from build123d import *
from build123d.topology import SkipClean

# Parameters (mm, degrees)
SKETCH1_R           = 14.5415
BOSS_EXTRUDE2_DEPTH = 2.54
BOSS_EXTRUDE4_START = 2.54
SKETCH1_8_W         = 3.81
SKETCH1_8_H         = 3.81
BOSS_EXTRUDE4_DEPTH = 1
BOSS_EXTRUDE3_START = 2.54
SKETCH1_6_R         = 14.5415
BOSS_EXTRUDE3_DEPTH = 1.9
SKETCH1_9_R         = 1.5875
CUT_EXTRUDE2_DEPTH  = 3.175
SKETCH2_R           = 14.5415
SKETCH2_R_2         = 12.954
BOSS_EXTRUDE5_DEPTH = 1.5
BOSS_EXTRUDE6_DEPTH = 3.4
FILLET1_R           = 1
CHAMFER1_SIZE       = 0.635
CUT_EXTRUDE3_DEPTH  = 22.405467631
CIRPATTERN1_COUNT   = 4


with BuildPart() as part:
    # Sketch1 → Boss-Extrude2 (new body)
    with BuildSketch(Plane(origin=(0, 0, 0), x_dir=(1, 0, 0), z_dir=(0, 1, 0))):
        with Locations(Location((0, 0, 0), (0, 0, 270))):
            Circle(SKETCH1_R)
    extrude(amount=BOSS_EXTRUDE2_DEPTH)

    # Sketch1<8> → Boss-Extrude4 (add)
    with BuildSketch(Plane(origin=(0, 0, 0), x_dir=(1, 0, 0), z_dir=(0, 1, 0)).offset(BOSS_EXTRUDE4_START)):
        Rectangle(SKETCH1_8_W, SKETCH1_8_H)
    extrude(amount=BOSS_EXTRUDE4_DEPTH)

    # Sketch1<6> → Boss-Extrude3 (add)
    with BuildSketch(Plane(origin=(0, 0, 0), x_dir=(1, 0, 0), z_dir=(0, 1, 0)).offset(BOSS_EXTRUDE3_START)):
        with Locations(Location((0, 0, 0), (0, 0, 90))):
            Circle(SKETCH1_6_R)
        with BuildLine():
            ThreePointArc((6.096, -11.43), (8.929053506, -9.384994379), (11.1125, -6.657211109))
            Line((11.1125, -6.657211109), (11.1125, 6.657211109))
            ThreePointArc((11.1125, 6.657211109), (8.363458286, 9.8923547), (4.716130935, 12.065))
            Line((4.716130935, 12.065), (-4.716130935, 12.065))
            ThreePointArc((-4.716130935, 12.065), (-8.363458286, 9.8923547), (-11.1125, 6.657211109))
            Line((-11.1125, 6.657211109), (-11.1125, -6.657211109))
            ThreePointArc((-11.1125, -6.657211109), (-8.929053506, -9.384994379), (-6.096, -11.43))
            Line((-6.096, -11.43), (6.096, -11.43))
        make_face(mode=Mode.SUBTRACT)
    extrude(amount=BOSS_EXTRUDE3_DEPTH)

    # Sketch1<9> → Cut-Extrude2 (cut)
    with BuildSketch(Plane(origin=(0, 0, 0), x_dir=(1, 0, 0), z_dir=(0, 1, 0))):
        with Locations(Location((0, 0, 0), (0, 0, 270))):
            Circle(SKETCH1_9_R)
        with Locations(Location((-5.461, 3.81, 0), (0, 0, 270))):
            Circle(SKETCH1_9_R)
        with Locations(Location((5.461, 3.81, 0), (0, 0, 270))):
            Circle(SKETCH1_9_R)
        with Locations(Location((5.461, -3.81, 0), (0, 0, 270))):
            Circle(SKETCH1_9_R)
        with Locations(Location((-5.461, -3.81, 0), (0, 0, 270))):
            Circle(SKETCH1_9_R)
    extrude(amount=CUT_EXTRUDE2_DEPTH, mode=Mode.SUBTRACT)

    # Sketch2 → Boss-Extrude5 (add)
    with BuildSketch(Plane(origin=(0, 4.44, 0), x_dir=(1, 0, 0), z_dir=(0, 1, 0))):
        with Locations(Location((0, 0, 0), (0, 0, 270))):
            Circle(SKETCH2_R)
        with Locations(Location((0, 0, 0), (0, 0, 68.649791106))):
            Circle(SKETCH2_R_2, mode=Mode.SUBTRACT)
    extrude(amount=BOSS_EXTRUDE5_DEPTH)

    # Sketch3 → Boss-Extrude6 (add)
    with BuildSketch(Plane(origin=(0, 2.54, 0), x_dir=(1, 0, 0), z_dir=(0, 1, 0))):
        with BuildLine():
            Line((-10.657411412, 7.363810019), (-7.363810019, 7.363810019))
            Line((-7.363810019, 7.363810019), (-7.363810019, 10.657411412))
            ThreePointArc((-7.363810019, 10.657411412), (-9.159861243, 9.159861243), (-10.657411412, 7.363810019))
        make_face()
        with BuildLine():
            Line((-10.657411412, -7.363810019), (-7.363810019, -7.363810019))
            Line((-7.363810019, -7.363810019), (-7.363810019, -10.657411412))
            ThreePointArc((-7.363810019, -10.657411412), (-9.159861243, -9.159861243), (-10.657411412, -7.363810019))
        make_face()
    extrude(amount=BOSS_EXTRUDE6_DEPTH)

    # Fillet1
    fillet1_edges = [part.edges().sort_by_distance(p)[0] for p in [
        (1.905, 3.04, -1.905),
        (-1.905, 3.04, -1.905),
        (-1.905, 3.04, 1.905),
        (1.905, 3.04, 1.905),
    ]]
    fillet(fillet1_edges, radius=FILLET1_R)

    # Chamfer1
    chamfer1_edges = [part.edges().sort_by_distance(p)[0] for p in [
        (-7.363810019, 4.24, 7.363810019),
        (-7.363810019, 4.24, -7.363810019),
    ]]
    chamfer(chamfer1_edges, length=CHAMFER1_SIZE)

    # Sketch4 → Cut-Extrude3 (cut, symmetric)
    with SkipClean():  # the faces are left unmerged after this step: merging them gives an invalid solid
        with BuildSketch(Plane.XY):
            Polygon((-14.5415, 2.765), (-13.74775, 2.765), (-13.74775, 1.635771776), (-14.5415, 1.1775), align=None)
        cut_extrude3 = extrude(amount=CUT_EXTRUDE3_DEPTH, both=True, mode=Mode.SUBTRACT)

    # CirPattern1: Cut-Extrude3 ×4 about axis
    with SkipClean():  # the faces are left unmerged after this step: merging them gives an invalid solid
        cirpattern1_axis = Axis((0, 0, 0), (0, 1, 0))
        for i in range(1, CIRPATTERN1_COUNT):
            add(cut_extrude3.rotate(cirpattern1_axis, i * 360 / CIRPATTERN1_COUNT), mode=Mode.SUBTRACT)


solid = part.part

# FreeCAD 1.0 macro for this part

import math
import FreeCAD as App
import Part
import Sketcher

V = App.Vector
Q = App.Units.Quantity


def edges_at(feature, points):
    """Names of the edges that pass closest to the given points."""
    edges = feature.Shape.Edges
    near = lambda p: min(range(len(edges)), key=lambda i: edges[i].distToShape(Part.Vertex(*p))[0])
    return sorted({f"Edge{near(p) + 1}" for p in points})


def add_polygon(sketch, points):
    """Adds a closed chain of lines whose ends are joined by coincident constraints."""
    first, n = sketch.GeometryCount, len(points)
    for a, b in zip(points, points[1:] + points[:1]):
        sketch.addGeometry(Part.LineSegment(App.Vector(*a, 0), App.Vector(*b, 0)), False)
    for i in range(n):
        sketch.addConstraint(Sketcher.Constraint("Coincident", first + i, 2, first + (i + 1) % n, 1))

doc = App.newDocument("Part")
body = doc.addObject("PartDesign::Body", "Body")

sketch1 = body.newObject("Sketcher::SketchObject", "Sketch")
sketch1.AttachmentSupport = (doc.getObject("XZ_Plane"), [""])
sketch1.MapMode = "FlatFace"
sketch1.addGeometry(Part.Circle(V(0, 0, 0), V(0, 0, 1), 15), False)
sketch1.addConstraint([
    Sketcher.Constraint("Coincident", 0, 3, -1, 1),
    Sketcher.Constraint("Diameter", 0, Q("1.145 in")),
])
pad1 = body.newObject("PartDesign::Pad", "Pad")
pad1.Profile = sketch1
pad1.Length = Q("0.1 in")
pad1.Reversed = True

sketch2 = body.newObject("Sketcher::SketchObject", "Sketch001")
sketch2.AttachmentSupport = (doc.getObject("XZ_Plane"), [""])
sketch2.MapMode = "FlatFace"
sketch2.AttachmentOffset = App.Placement(V(0, 0, -0.1 * 25.4), App.Rotation())
add_polygon(sketch2, [(-1.9, -1.9), (-1.9, 1.9), (1.9, 1.9), (1.9, -1.9)])
sketch2.addConstraint([
    Sketcher.Constraint("Vertical", 0),
    Sketcher.Constraint("Horizontal", 1),
    Sketcher.Constraint("Vertical", 2),
    Sketcher.Constraint("Horizontal", 3),
    Sketcher.Constraint("Symmetric", 0, 2, 2, 2, -1, 1),
    Sketcher.Constraint("Equal", 3, 0),
    Sketcher.Constraint("DistanceX", 1, 1, 1, 2, Q("0.15 in")),
])
pad2 = body.newObject("PartDesign::Pad", "Pad001")
pad2.Profile = sketch2
pad2.Length = 1
pad2.Reversed = True

sketch3 = body.newObject("Sketcher::SketchObject", "Sketch002")
sketch3.AttachmentSupport = (doc.getObject("XZ_Plane"), [""])
sketch3.MapMode = "FlatFace"
sketch3.AttachmentOffset = App.Placement(V(0, 0, -0.1 * 25.4), App.Rotation())
sketch3.addGeometry([
    Part.Circle(V(0, 0, 0), V(0, 0, 1), 15),
    Part.ArcOfCircle(Part.Circle(V(0, 0, 0), V(0, 0, 1), 13), math.radians(31), math.radians(62)),
    Part.LineSegment(V(6, 11, 0), V(-6, 11, 0)),
    Part.ArcOfCircle(Part.Circle(V(0, 0, 0), V(0, 0, 1), 13), math.radians(118), math.radians(149)),
    Part.LineSegment(V(-11, 7, 0), V(-11, -7, 0)),
    Part.ArcOfCircle(Part.Circle(V(0, 0, 0), V(0, 0, 1), 13), math.radians(-149), math.radians(-111)),
    Part.LineSegment(V(-5, -12, 0), V(5, -12, 0)),
    Part.ArcOfCircle(Part.Circle(V(0, 0, 0), V(0, 0, 1), 13), math.radians(-69), math.radians(-31)),
    Part.LineSegment(V(11, -7, 0), V(11, 7, 0)),
], False)
sketch3.addConstraint([
    Sketcher.Constraint("Coincident", 1, 2, 2, 1),
    Sketcher.Constraint("Coincident", 2, 2, 3, 1),
    Sketcher.Constraint("Coincident", 3, 2, 4, 1),
    Sketcher.Constraint("Coincident", 4, 2, 5, 1),
    Sketcher.Constraint("Coincident", 5, 2, 6, 1),
    Sketcher.Constraint("Coincident", 6, 2, 7, 1),
    Sketcher.Constraint("Coincident", 7, 2, 8, 1),
    Sketcher.Constraint("Coincident", 8, 2, 1, 1),
    Sketcher.Constraint("Horizontal", 2),
    Sketcher.Constraint("Vertical", 4),
    Sketcher.Constraint("Horizontal", 6),
    Sketcher.Constraint("Vertical", 8),
    Sketcher.Constraint("Coincident", 0, 3, -1, 1),
    Sketcher.Constraint("Coincident", 1, 3, -1, 1),
    Sketcher.Constraint("Coincident", 3, 3, -1, 1),
    Sketcher.Constraint("Coincident", 5, 3, -1, 1),
    Sketcher.Constraint("Coincident", 7, 3, -1, 1),
    Sketcher.Constraint("Equal", 1, 3),
    Sketcher.Constraint("Equal", 3, 5),
    Sketcher.Constraint("Equal", 5, 7),
    Sketcher.Constraint("Horizontal", 4, 2, 7, 2),
    Sketcher.Constraint("Radius", 1, Q("0.51 in")),
    Sketcher.Constraint("Diameter", 0, Q("1.145 in")),
    Sketcher.Constraint("DistanceX", 2, 2, 2, 1, Q("0.48 in")),
    Sketcher.Constraint("DistanceX", 3, 2, -1, 1, Q("0.4375 in")),
    Sketcher.Constraint("DistanceY", 5, 2, -1, 1, Q("0.475 in")),
])
pad3 = body.newObject("PartDesign::Pad", "Pad002")
pad3.Profile = sketch3
pad3.Length = 1.9
pad3.Reversed = True

sketch4 = body.newObject("Sketcher::SketchObject", "Sketch003")
sketch4.AttachmentSupport = (doc.getObject("XZ_Plane"), [""])
sketch4.MapMode = "FlatFace"
sketch4.addGeometry([
    Part.Circle(V(0, 0, 0), V(0, 0, 1), 1.6),
    Part.Circle(V(-5.5, -3.8, 0), V(0, 0, 1), 1.6),
    Part.Circle(V(5.5, -3.8, 0), V(0, 0, 1), 1.6),
    Part.Circle(V(5.5, 3.8, 0), V(0, 0, 1), 1.6),
    Part.Circle(V(-5.5, 3.8, 0), V(0, 0, 1), 1.6),
], False)
sketch4.addConstraint([
    Sketcher.Constraint("Coincident", 0, 3, -1, 1),
    Sketcher.Constraint("Equal", 0, 1),
    Sketcher.Constraint("Equal", 1, 2),
    Sketcher.Constraint("Equal", 2, 3),
    Sketcher.Constraint("Equal", 3, 4),
    Sketcher.Constraint("Symmetric", 1, 3, 3, 3, -1, 1),
    Sketcher.Constraint("Symmetric", 2, 3, 4, 3, -1, 1),
    Sketcher.Constraint("Symmetric", 1, 3, 2, 3, -2),
    Sketcher.Constraint("Diameter", 0, Q("0.125 in")),
    Sketcher.Constraint("DistanceY", 2, 3, 3, 3, Q("0.3 in")),
    Sketcher.Constraint("DistanceX", 1, 3, 2, 3, Q("0.43 in")),
])
pocket1 = body.newObject("PartDesign::Pocket", "Pocket")
pocket1.Profile = sketch4
pocket1.Length = Q("0.125 in")

sketch5 = body.newObject("Sketcher::SketchObject", "Sketch004")
sketch5.AttachmentSupport = (doc.getObject("XZ_Plane"), [""])
sketch5.MapMode = "FlatFace"
sketch5.AttachmentOffset = App.Placement(V(0, 0, -4.44), App.Rotation())
sketch5.addGeometry([
    Part.Circle(V(0, 0, 0), V(0, 0, 1), 15),
    Part.Circle(V(0, 0, 0), V(0, 0, 1), 13),
], False)
sketch5.addConstraint([
    Sketcher.Constraint("Coincident", 0, 3, -1, 1),
    Sketcher.Constraint("Coincident", 1, 3, -1, 1),
    Sketcher.Constraint("Diameter", 1, Q("1.02 in")),
    Sketcher.Constraint("Diameter", 0, Q("1.145 in")),
])
pad4 = body.newObject("PartDesign::Pad", "Pad003")
pad4.Profile = sketch5
pad4.Length = 1.5
pad4.Reversed = True

sketch6 = body.newObject("Sketcher::SketchObject", "Sketch005")
sketch6.AttachmentSupport = (doc.getObject("XZ_Plane"), [""])
sketch6.MapMode = "FlatFace"
sketch6.AttachmentOffset = App.Placement(V(0, 0, -0.1 * 25.4), App.Rotation())
sketch6.addGeometry([
    Part.LineSegment(V(-10.7, -7.4, 0), V(-7.4, -7.4, 0)),
    Part.LineSegment(V(-7.4, -7.4, 0), V(-7.4, -10.7, 0)),
    Part.ArcOfCircle(Part.Circle(V(0, 0, 0), V(0, 0, 1), 13), math.radians(-145), math.radians(-125)),
    Part.LineSegment(V(-7.4, 7.4, 0), V(-10.7, 7.4, 0)),
    Part.ArcOfCircle(Part.Circle(V(0, 0, 0), V(0, 0, 1), 13), math.radians(125), math.radians(145)),
    Part.LineSegment(V(-7.4, 10.7, 0), V(-7.4, 7.4, 0)),
], False)
sketch6.addConstraint([
    Sketcher.Constraint("Coincident", 0, 2, 1, 1),
    Sketcher.Constraint("Coincident", 1, 2, 2, 2),
    Sketcher.Constraint("Coincident", 2, 1, 0, 1),
    Sketcher.Constraint("Coincident", 3, 2, 4, 2),
    Sketcher.Constraint("Coincident", 4, 1, 5, 1),
    Sketcher.Constraint("Coincident", 5, 2, 3, 1),
    Sketcher.Constraint("Horizontal", 0),
    Sketcher.Constraint("Vertical", 1),
    Sketcher.Constraint("Horizontal", 3),
    Sketcher.Constraint("Vertical", 5),
    Sketcher.Constraint("Coincident", 2, 3, -1, 1),
    Sketcher.Constraint("Coincident", 4, 3, -1, 1),
    Sketcher.Constraint("Equal", 2, 4),
    Sketcher.Constraint("Symmetric", 0, 2, 5, 2, -1),
    Sketcher.Constraint("Equal", 3, 1),
    Sketcher.Constraint("Radius", 2, Q("0.51 in")),
    Sketcher.Constraint("DistanceX", 0, 1, 0, 2, 3.293601),
])
pad5 = body.newObject("PartDesign::Pad", "Pad004")
pad5.Profile = sketch6
pad5.Length = 3.4
pad5.Reversed = True
doc.recompute()

fillet = body.newObject("PartDesign::Fillet", "Fillet")
fillet.Base = (pad5, edges_at(pad5, [
    (1.905, 3.04, -1.905),
    (-1.905, 3.04, -1.905),
    (-1.905, 3.04, 1.905),
    (1.905, 3.04, 1.905),
]))
fillet.Radius = 1
doc.recompute()

chamfer = body.newObject("PartDesign::Chamfer", "Chamfer")
chamfer.Base = (fillet, edges_at(fillet, [(-7.364, 4.24, 7.364), (-7.364, 4.24, -7.364)]))
chamfer.Size = Q("0.025 in")

sketch7 = body.newObject("Sketcher::SketchObject", "Sketch006")
sketch7.AttachmentSupport = (doc.getObject("XY_Plane"), [""])
sketch7.MapMode = "FlatFace"
add_polygon(sketch7, [(-13.7, 2.8), (-14.5, 2.8), (-14.5, 1.2), (-13.7, 1.6)])
sketch7.addConstraint([
    Sketcher.Constraint("Horizontal", 0),
    Sketcher.Constraint("Vertical", 1),
    Sketcher.Constraint("Vertical", 3),
    Sketcher.Constraint("Angle", 2, Q("30 deg")),
    Sketcher.Constraint("DistanceX", 0, 2, 0, 1, Q("0.03125 in")),
    Sketcher.Constraint("DistanceY", 1, 2, 1, 1, Q("0.0625 in")),
    Sketcher.Constraint("DistanceX", 0, 2, -1, 1, Q("0.5725 in")),
    Sketcher.Constraint("DistanceY", -1, 1, 0, 2, 2.765),
])
pocket2 = body.newObject("PartDesign::Pocket", "Pocket001")
pocket2.Profile = sketch7
pocket2.Length = 44.810935
pocket2.Midplane = True
doc.recompute()

polarpattern = body.newObject("PartDesign::PolarPattern", "PolarPattern")
polarpattern.Originals = [pocket2]
polarpattern.Axis = (doc.getObject("Y_Axis"), [""])
polarpattern.Angle = 360
polarpattern.Occurrences = 4
body.Tip = polarpattern

doc.recompute()
